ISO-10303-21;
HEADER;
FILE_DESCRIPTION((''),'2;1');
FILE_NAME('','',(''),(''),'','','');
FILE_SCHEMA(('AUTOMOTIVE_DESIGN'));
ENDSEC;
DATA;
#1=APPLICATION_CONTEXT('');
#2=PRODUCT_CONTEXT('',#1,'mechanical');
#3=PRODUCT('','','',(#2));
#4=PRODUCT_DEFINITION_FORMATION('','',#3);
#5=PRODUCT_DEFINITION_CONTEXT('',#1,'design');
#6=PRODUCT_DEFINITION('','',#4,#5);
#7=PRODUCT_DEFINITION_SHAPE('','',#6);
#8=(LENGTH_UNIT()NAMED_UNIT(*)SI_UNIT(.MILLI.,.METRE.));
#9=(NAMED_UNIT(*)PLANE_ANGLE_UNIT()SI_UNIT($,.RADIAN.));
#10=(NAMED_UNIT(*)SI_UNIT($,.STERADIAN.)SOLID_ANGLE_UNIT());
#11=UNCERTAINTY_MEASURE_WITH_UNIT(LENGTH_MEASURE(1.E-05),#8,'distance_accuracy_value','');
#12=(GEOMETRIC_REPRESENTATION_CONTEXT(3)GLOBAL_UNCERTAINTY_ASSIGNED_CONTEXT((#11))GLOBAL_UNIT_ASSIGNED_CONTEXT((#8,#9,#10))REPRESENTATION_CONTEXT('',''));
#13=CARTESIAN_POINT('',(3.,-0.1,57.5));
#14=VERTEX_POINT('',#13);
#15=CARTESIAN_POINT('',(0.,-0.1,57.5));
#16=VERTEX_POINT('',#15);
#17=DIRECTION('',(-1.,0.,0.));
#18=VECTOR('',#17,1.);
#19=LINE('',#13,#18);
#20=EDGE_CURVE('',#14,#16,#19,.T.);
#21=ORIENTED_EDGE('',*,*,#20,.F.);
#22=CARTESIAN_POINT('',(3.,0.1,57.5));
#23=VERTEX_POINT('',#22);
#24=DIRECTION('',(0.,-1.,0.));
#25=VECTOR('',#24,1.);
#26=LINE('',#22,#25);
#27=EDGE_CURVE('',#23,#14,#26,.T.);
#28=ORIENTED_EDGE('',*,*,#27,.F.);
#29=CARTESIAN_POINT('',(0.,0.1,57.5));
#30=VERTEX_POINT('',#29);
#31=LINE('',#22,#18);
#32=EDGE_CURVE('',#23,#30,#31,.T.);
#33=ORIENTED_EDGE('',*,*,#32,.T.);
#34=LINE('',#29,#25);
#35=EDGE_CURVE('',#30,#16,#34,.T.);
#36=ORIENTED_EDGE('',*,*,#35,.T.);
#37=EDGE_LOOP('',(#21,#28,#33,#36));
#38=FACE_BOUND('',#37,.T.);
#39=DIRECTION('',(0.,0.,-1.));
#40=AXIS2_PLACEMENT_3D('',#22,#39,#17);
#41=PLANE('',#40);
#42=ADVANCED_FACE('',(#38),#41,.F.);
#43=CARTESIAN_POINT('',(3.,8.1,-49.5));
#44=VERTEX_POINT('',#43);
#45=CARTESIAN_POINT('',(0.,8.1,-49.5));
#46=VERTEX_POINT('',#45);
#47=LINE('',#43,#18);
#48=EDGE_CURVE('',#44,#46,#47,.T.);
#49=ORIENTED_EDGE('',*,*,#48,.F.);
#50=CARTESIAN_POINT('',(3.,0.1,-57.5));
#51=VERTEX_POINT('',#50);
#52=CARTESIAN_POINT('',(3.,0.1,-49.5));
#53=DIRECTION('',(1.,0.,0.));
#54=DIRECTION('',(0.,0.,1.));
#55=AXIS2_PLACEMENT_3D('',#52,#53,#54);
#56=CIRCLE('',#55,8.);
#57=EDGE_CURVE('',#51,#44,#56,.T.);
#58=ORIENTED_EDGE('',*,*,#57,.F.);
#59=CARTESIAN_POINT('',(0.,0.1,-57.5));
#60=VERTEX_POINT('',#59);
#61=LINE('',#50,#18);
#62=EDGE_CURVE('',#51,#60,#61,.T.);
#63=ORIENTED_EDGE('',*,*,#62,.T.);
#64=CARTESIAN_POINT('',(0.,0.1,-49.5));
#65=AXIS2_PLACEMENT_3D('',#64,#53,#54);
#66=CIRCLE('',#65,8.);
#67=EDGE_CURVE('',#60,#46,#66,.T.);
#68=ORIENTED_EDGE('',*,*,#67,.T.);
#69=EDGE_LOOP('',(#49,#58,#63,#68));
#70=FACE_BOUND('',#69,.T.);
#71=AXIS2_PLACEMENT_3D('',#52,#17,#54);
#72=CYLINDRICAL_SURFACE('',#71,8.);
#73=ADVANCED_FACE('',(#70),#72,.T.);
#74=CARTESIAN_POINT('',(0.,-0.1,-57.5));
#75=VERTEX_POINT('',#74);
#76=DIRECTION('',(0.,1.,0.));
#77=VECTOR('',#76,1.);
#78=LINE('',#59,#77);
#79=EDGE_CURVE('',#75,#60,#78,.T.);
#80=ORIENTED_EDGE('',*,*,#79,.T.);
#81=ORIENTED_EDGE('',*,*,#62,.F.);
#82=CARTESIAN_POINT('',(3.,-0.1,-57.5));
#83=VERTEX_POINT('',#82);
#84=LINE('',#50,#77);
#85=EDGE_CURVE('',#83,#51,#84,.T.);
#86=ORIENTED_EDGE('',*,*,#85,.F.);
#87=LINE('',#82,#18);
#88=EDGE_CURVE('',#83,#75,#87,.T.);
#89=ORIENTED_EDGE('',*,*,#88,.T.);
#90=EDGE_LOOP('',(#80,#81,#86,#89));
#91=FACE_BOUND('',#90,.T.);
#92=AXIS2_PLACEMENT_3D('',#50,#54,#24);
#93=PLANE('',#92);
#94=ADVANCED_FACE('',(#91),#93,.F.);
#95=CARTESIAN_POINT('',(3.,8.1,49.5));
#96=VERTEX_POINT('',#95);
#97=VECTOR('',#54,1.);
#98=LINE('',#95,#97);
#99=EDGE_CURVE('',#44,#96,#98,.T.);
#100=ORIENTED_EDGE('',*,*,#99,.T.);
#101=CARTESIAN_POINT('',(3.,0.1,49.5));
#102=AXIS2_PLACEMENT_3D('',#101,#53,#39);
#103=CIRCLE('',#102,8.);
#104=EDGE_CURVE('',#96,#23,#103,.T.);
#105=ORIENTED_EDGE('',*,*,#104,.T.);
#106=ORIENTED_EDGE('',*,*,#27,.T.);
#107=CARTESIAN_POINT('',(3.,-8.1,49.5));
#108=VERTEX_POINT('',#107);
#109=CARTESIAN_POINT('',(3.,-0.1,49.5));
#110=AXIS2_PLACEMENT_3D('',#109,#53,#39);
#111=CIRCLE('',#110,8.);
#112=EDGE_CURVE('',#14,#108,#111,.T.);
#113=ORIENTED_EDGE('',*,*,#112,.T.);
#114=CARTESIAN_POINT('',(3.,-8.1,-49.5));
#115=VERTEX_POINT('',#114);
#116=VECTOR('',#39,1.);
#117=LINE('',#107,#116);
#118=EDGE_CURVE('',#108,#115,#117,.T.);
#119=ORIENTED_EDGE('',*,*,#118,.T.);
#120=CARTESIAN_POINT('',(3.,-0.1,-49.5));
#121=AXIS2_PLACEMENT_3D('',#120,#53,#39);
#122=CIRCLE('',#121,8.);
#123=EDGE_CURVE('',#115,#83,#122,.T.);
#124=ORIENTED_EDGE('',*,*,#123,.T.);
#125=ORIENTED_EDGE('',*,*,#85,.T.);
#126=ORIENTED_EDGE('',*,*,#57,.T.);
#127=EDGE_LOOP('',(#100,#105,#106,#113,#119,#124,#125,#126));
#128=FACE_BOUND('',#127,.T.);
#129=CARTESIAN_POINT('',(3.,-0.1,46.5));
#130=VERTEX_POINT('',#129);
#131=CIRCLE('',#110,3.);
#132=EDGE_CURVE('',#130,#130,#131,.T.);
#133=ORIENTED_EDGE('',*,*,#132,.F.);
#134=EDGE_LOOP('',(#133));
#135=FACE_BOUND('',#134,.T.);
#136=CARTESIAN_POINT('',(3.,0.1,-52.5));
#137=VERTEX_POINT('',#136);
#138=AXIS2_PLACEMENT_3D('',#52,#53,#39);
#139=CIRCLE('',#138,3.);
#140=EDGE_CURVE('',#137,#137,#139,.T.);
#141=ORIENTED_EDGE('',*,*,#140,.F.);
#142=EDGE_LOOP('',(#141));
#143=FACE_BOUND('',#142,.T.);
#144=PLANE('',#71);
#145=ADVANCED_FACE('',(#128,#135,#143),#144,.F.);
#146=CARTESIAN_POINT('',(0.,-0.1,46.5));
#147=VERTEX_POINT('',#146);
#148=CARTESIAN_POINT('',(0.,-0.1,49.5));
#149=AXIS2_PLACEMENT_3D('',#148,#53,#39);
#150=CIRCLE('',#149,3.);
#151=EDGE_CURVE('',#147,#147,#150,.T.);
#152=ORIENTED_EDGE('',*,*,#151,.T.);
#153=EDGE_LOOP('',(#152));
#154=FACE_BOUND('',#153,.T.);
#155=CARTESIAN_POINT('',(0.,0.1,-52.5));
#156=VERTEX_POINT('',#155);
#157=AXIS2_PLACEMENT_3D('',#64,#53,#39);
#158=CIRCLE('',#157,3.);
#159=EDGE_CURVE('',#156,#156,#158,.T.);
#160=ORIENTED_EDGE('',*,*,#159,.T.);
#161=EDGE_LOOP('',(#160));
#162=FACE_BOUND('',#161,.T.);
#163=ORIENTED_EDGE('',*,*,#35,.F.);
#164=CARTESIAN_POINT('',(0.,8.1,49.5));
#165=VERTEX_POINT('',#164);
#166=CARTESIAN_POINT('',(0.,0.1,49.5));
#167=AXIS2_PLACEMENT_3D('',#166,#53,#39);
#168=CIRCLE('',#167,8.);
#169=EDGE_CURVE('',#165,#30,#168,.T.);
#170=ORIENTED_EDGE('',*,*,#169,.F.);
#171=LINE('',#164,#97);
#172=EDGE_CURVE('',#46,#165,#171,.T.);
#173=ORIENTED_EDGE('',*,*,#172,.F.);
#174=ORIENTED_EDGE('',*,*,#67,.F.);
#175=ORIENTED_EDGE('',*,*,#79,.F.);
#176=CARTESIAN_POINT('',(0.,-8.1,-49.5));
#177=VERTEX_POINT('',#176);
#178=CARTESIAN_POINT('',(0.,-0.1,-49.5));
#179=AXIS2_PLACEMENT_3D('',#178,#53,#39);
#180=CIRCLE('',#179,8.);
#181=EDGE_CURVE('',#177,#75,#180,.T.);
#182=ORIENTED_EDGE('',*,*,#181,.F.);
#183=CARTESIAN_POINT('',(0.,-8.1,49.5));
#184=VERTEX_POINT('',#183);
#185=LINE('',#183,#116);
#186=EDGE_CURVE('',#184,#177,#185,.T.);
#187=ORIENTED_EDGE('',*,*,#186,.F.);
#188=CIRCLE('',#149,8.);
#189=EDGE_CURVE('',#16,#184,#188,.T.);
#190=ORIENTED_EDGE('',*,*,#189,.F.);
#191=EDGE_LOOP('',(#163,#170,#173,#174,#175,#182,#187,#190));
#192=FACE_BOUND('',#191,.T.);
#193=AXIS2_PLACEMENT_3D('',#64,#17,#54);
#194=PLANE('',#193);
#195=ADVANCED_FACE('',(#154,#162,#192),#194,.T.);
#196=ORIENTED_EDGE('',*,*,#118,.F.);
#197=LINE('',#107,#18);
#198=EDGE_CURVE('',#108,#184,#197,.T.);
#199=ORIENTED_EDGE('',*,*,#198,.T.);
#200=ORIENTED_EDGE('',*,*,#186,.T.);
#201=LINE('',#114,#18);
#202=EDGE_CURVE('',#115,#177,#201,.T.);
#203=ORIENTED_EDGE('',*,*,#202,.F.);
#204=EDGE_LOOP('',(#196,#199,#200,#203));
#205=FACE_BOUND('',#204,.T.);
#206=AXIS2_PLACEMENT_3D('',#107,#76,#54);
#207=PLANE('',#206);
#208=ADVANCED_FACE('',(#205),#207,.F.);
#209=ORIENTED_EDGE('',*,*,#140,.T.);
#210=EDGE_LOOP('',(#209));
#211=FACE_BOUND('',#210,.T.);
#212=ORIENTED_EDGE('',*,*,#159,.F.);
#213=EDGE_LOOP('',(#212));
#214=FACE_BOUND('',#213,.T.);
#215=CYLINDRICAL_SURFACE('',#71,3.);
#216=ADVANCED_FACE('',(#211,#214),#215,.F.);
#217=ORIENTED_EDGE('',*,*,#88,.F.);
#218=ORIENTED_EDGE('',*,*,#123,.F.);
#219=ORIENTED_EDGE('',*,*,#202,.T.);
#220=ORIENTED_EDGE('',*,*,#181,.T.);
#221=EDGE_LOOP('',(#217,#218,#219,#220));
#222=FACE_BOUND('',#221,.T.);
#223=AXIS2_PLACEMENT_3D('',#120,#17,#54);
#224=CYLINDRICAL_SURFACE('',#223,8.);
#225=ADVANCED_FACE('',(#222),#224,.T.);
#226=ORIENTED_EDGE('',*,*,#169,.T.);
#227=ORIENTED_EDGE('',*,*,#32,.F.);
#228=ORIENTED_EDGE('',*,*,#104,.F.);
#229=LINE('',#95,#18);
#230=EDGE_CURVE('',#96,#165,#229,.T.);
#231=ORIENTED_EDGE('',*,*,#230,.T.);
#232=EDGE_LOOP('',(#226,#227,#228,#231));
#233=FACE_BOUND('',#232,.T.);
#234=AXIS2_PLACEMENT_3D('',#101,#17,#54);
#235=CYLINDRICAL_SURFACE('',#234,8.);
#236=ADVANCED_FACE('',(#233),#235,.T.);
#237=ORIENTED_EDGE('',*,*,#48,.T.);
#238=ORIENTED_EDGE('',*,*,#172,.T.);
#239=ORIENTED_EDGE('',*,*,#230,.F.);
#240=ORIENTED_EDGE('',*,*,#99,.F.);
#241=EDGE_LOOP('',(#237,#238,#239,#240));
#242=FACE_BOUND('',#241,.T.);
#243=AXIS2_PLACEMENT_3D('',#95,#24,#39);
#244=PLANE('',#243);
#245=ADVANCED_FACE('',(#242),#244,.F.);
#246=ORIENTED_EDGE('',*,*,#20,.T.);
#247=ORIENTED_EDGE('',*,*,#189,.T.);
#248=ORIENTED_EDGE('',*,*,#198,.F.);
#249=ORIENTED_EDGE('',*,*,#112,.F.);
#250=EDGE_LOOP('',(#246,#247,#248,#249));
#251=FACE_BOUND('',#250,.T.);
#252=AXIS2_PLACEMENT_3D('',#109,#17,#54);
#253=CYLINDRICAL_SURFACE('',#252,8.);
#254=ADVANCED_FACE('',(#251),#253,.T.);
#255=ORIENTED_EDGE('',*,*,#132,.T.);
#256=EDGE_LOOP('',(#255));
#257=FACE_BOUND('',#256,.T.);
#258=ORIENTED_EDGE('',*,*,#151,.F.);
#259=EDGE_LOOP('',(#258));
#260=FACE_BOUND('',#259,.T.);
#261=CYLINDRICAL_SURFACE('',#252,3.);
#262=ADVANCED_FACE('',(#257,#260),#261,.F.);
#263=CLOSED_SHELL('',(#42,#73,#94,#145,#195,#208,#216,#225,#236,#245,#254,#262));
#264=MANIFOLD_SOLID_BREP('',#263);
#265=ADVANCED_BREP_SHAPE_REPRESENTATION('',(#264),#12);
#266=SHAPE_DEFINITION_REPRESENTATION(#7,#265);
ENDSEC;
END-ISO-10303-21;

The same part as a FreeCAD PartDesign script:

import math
import FreeCAD as App
import Part
import Sketcher

V = App.Vector

doc = App.newDocument("Part")
params = doc.addObject("Spreadsheet::Sheet", "Params")
for row, (alias, value) in enumerate([
    ("sketch1_diameter", "6 mm"),
    ("sketch1_radius", "8 mm"),
    ("sketch1_height", "99 mm"),
    ("sketch1_width", "0.2 mm"),
    ("pad1_length", "3 mm"),
], start=1):
    params.set(f"A{row}", alias)
    params.set(f"B{row}", "=" + value)
    params.setAlias(f"B{row}", alias)

body = doc.addObject("PartDesign::Body", "Body")

# Sketch on YZ plane
sketch1 = body.newObject("Sketcher::SketchObject", "Sketch")
sketch1.AttachmentSupport = (doc.getObject("YZ_Plane"), [""])
sketch1.MapMode = "FlatFace"
sketch1.addGeometry([
    Part.LineSegment(V(8.1, -49.5, 0), V(8.1, 49.5, 0)),  # 0
    Part.ArcOfCircle(Part.Circle(V(0.1, 49.5, 0), V(0, 0, 1), 8), math.radians(0), math.radians(90)),  # 1
    Part.LineSegment(V(0.1, 57.5, 0), V(-0.1, 57.5, 0)),  # 2
    Part.ArcOfCircle(Part.Circle(V(-0.1, 49.5, 0), V(0, 0, 1), 8), math.radians(90), math.radians(180)),  # 3
    Part.LineSegment(V(-8.1, 49.5, 0), V(-8.1, -49.5, 0)),  # 4
    Part.ArcOfCircle(Part.Circle(V(-0.1, -49.5, 0), V(0, 0, 1), 8), math.radians(-180), math.radians(-90)),  # 5
    Part.LineSegment(V(-0.1, -57.5, 0), V(0.1, -57.5, 0)),  # 6
    Part.ArcOfCircle(Part.Circle(V(0.1, -49.5, 0), V(0, 0, 1), 8), math.radians(-90), math.radians(0)),  # 7
    Part.Circle(V(-0.1, 49.5, 0), V(0, 0, 1), 3),  # 8
    Part.Circle(V(0.1, -49.5, 0), V(0, 0, 1), 3),  # 9
], False)
sketch1.addConstraint([
    Sketcher.Constraint("Tangent", 0, 2, 1, 1),
    Sketcher.Constraint("Tangent", 1, 2, 2, 1),
    Sketcher.Constraint("Tangent", 2, 2, 3, 1),
    Sketcher.Constraint("Tangent", 3, 2, 4, 1),
    Sketcher.Constraint("Tangent", 4, 2, 5, 1),
    Sketcher.Constraint("Tangent", 5, 2, 6, 1),
    Sketcher.Constraint("Tangent", 6, 2, 7, 1),
    Sketcher.Constraint("Tangent", 7, 2, 0, 1),
    Sketcher.Constraint("Vertical", 0),
    Sketcher.Constraint("Horizontal", 2),
    Sketcher.Constraint("Vertical", 4),
    Sketcher.Constraint("Horizontal", 6),
    Sketcher.Constraint("Coincident", 8, 3, 3, 3),
    Sketcher.Constraint("Coincident", 9, 3, 7, 3),
    Sketcher.Constraint("Equal", 1, 3),
    Sketcher.Constraint("Equal", 3, 5),
    Sketcher.Constraint("Equal", 5, 7),
    Sketcher.Constraint("Equal", 8, 9),
    Sketcher.Constraint("Symmetric", 1, 3, 5, 3, -1, 1),
    Sketcher.Constraint("Diameter", 8, 6.0),
    Sketcher.Constraint("Radius", 1, 8.0),
    Sketcher.Constraint("DistanceY", 0, 1, 0, 2, 99.0),
    Sketcher.Constraint("DistanceX", 2, 2, 2, 1, 0.2),
])
sketch1.setExpression("Constraints[19]", "Params.sketch1_diameter")
sketch1.setExpression("Constraints[20]", "Params.sketch1_radius")
sketch1.setExpression("Constraints[21]", "Params.sketch1_height")
sketch1.setExpression("Constraints[22]", "Params.sketch1_width")
pad1 = body.newObject("PartDesign::Pad", "Pad")
pad1.Profile = sketch1
pad1.setExpression("Length", "Params.pad1_length")

doc.recompute()
